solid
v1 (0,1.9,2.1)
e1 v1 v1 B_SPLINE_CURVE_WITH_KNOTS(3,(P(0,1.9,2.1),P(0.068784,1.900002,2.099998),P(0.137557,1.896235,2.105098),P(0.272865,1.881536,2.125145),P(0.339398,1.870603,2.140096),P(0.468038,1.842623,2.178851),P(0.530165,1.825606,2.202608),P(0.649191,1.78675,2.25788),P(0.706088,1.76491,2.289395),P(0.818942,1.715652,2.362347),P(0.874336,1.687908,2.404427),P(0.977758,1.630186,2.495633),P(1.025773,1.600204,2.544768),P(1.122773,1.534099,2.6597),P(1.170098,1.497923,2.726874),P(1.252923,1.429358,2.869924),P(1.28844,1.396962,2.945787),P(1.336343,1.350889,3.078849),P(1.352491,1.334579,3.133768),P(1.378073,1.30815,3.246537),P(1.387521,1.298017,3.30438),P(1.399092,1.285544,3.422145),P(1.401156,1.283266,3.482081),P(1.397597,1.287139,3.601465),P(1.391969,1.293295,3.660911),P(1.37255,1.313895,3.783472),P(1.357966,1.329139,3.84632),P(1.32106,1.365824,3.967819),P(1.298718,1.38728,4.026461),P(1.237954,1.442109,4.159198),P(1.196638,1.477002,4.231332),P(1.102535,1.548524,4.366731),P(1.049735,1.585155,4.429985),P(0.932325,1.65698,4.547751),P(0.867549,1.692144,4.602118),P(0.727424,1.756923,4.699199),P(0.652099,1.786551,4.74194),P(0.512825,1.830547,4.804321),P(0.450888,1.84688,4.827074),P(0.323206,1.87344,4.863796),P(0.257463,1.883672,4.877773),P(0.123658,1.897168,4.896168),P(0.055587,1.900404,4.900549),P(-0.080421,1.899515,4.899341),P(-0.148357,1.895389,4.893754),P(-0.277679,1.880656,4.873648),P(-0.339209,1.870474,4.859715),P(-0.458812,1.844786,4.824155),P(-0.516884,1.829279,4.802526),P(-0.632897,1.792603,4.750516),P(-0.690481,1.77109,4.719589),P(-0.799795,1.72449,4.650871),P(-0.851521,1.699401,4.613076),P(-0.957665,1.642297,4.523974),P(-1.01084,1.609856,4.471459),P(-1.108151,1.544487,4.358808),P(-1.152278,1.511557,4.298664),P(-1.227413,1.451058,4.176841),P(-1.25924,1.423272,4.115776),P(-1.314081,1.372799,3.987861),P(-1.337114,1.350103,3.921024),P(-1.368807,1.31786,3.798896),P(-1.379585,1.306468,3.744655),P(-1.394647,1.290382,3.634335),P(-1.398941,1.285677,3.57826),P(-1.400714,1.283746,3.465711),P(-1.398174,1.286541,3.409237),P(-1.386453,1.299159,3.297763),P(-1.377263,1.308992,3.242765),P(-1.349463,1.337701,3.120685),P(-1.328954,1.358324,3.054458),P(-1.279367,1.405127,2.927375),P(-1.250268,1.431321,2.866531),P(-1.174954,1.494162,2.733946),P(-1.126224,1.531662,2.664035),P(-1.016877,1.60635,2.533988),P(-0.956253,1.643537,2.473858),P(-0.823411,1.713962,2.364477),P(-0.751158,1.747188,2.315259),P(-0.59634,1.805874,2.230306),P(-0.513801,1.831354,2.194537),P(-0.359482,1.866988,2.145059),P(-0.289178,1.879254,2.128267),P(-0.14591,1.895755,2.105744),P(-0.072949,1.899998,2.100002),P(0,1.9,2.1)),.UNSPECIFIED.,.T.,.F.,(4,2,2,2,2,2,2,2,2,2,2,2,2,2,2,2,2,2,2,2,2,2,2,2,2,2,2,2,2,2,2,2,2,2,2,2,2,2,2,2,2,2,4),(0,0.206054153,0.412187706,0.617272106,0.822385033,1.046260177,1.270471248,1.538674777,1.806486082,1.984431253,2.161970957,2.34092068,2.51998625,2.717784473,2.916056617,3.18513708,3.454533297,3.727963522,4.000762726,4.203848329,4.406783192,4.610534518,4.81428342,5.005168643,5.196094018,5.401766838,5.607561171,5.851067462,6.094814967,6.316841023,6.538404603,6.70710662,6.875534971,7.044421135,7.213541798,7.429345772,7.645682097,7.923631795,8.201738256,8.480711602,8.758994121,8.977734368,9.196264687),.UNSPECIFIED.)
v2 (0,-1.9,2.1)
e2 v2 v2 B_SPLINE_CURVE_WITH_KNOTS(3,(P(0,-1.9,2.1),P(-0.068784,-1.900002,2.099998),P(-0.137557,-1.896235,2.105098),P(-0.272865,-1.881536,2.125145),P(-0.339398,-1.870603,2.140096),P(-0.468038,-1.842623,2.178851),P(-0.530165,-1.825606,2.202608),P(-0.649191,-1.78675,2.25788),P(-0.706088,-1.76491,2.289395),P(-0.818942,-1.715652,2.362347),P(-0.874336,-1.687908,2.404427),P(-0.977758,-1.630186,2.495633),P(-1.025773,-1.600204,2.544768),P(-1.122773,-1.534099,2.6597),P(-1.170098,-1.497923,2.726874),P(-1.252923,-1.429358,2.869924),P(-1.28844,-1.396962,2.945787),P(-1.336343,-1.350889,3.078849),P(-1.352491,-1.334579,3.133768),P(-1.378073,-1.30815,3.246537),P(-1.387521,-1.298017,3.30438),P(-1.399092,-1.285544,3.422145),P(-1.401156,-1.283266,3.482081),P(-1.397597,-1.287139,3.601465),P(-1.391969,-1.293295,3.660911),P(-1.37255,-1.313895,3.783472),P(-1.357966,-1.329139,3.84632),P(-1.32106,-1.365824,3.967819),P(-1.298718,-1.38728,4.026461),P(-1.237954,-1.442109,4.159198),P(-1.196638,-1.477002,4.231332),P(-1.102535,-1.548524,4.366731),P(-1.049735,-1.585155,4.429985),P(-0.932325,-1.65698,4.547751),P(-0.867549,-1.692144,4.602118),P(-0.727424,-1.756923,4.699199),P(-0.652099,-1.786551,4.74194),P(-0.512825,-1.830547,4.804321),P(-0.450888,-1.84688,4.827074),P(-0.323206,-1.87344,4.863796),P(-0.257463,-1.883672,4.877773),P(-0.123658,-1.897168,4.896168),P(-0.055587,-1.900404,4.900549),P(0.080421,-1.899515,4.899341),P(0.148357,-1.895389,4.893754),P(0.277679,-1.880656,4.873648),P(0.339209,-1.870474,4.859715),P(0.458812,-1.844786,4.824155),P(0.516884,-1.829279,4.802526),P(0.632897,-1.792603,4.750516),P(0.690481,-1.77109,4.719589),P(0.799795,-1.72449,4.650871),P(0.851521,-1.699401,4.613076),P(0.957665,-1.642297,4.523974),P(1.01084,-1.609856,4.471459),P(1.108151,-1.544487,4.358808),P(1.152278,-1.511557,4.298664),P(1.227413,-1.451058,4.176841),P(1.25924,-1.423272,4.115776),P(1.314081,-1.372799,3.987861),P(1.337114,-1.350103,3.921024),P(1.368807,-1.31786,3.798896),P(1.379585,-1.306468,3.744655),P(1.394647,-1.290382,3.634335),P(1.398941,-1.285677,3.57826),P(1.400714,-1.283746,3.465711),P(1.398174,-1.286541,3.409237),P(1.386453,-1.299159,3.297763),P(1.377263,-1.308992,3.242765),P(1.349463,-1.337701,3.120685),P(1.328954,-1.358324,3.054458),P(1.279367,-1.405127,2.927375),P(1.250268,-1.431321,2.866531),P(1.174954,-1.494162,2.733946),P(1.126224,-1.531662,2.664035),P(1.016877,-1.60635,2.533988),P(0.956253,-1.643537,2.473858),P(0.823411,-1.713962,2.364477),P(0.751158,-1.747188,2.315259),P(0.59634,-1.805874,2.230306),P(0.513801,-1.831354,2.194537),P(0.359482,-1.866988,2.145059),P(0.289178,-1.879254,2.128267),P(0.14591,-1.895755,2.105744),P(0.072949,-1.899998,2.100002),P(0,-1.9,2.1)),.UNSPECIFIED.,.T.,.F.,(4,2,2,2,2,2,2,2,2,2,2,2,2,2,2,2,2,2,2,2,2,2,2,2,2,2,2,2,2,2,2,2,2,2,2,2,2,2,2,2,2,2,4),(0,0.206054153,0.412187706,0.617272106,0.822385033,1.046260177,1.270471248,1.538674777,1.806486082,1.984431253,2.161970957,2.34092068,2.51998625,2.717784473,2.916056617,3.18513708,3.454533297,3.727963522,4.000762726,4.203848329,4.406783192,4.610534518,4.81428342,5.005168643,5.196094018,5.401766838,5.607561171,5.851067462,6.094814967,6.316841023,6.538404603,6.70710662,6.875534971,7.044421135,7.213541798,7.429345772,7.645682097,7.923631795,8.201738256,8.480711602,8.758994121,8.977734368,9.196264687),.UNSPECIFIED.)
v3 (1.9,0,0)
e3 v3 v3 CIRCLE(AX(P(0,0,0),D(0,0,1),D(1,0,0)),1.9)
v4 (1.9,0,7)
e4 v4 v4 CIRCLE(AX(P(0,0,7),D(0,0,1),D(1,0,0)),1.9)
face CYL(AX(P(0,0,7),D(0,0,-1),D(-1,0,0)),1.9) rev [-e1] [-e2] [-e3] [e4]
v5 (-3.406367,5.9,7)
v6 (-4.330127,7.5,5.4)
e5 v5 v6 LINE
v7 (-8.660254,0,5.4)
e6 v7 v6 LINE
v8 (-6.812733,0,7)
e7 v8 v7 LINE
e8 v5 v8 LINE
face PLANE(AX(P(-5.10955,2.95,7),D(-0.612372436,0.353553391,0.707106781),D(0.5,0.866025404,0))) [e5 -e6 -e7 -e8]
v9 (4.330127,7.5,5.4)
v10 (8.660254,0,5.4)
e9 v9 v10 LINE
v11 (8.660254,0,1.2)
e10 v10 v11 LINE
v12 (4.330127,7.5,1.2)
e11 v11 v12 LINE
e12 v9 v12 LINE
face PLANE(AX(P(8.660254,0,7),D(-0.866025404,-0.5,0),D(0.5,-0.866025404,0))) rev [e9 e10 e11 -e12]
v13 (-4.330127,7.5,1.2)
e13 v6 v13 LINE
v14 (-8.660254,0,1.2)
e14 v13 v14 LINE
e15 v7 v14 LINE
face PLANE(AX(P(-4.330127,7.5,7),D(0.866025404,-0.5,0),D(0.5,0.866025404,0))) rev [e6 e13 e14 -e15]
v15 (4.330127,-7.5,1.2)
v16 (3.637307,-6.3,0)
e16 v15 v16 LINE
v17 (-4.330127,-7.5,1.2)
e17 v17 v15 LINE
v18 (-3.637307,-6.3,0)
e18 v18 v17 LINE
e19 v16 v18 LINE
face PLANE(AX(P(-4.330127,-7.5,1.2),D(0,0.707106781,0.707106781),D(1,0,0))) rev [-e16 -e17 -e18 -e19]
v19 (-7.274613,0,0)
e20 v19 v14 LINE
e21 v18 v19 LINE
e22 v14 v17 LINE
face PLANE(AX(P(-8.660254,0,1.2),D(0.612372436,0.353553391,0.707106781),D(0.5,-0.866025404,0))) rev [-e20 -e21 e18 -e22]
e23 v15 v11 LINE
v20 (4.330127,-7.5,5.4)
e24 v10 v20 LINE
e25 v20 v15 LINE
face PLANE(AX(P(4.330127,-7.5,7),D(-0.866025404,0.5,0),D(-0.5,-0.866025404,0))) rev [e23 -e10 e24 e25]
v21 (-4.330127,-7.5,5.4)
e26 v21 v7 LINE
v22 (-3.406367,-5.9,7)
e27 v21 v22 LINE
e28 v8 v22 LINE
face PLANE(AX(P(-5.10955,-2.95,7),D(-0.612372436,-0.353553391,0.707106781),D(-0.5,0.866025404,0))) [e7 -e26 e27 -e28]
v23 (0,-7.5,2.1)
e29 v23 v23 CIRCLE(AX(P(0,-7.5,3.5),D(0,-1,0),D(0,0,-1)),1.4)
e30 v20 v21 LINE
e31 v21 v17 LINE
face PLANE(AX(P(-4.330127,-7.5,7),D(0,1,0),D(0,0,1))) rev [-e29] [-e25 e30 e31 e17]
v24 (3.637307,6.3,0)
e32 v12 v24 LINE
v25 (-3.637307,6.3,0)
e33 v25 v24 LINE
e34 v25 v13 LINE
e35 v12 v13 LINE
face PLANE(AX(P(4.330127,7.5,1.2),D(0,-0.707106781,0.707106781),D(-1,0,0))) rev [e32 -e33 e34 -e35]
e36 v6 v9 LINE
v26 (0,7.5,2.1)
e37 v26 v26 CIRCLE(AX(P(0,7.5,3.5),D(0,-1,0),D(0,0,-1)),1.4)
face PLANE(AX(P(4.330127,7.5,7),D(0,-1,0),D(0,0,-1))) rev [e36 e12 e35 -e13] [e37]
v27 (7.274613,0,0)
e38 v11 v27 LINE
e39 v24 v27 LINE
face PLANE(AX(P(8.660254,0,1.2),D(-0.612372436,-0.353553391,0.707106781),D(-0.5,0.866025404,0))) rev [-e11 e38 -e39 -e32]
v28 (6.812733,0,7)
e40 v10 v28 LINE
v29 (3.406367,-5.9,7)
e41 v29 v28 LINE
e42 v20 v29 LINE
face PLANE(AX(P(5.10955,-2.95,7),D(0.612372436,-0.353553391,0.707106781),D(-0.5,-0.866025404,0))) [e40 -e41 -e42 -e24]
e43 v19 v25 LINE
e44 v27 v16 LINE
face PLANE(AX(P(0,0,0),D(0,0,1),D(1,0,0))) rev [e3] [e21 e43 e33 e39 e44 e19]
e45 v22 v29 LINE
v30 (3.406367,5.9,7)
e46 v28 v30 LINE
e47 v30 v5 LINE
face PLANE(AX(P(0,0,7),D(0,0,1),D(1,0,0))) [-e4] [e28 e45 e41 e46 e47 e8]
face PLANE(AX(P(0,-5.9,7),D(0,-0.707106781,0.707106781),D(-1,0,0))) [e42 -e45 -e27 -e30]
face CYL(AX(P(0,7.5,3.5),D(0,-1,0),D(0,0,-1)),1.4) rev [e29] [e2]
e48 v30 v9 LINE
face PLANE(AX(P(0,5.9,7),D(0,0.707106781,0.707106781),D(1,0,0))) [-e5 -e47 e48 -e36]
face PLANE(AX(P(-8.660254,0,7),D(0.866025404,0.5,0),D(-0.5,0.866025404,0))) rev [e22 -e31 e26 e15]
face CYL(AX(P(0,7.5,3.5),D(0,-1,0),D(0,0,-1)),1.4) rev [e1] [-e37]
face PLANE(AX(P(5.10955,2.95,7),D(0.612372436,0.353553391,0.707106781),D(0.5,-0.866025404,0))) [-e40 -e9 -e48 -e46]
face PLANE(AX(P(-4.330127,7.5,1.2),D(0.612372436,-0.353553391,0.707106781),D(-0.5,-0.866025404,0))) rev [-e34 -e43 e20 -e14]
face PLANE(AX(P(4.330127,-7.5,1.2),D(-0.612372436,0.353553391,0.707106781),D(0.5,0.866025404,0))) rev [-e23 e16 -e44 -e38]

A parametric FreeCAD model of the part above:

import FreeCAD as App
import Part
import Sketcher

V = App.Vector
Q = App.Units.Quantity


def edges_at(feature, points):
    """Names of the edges that pass closest to the given points."""
    edges = feature.Shape.Edges
    near = lambda p: min(range(len(edges)), key=lambda i: edges[i].distToShape(Part.Vertex(*p))[0])
    return sorted({f"Edge{near(p) + 1}" for p in points})


def add_polygon(sketch, points):
    """Adds a closed chain of lines whose ends are joined by coincident constraints."""
    first, n = sketch.GeometryCount, len(points)
    for a, b in zip(points, points[1:] + points[:1]):
        sketch.addGeometry(Part.LineSegment(App.Vector(*a, 0), App.Vector(*b, 0)), False)
    for i in range(n):
        sketch.addConstraint(Sketcher.Constraint("Coincident", first + i, 2, first + (i + 1) % n, 1))

doc = App.newDocument("Part")
body = doc.addObject("PartDesign::Body", "Body")

# Sketch on XY plane
sketch1 = doc.addObject("Sketcher::SketchObject", "Sketch")
body.addObject(sketch1)
sketch1.AttachmentSupport = (doc.XY_Plane, [""])
sketch1.MapMode = "FlatFace"
add_polygon(sketch1, [(8.7, 0), (4.3, 7.5), (-4.3, 7.5), (-8.7, 0), (-4.3, -7.5), (4.3, -7.5)])  # lines 0-5
sketch1.addGeometry(Part.Circle(V(0, 0, 0), V(0, 0, 1), 1.9), False)  # 6
sketch1.addConstraint(Sketcher.Constraint("Horizontal", 1))
sketch1.addConstraint(Sketcher.Constraint("Horizontal", 4))
sketch1.addConstraint(Sketcher.Constraint("Coincident", 6, 3, -1, 1))
sketch1.addConstraint(Sketcher.Constraint("Symmetric", 0, 2, 3, 2, -1, 1))
sketch1.addConstraint(Sketcher.Constraint("Symmetric", 2, 2, 5, 2, -1, 1))
sketch1.addConstraint(Sketcher.Constraint("PointOnObject", 2, 2, -1))
sketch1.addConstraint(Sketcher.Constraint("Parallel", 2, 5))
sketch1.addConstraint(Sketcher.Constraint("Vertical", 1, 2, 3, 2))
sketch1.addConstraint(Sketcher.Constraint("Diameter", 6, 3.8))
sketch1.addConstraint(Sketcher.Constraint("Angle", 0, Q("120 deg")))
sketch1.addConstraint(Sketcher.Constraint("DistanceY", 3, 2, 1, 2, 15.0))
sketch1.addConstraint(Sketcher.Constraint("DistanceX", 1, 2, 1, 1, 8.660254))
pad1 = doc.addObject("PartDesign::Pad", "Pad")
body.addObject(pad1)
pad1.Profile = sketch1
pad1.Length = 7

# Sketch on XZ plane
sketch2 = doc.addObject("Sketcher::SketchObject", "Sketch001")
body.addObject(sketch2)
sketch2.AttachmentSupport = (doc.XZ_Plane, [""])
sketch2.MapMode = "FlatFace"
sketch2.AttachmentOffset = App.Placement(V(0, 0, 7.5), App.Rotation())
sketch2.addGeometry(Part.Circle(V(0, 3.5, 0), V(0, 0, 1), 1.4), False)
sketch2.addConstraint(Sketcher.Constraint("PointOnObject", 0, 3, -2))
sketch2.addConstraint(Sketcher.Constraint("Diameter", 0, 2.8))
sketch2.addConstraint(Sketcher.Constraint("DistanceY", -1, 1, 0, 3, 3.5))
pocket1 = doc.addObject("PartDesign::Pocket", "Pocket")
body.addObject(pocket1)
pocket1.Profile = sketch2
pocket1.Type = "ThroughAll"
doc.recompute()

chamfer = doc.addObject("PartDesign::Chamfer", "Chamfer")
body.addObject(chamfer)
chamfer.Base = (pocket1, edges_at(pocket1, [
    (0, 7.5, 7),
    (-6.495, 3.75, 7),
    (-6.495, -3.75, 7),
    (0, -7.5, 7),
    (6.495, -3.75, 7),
    (6.495, 3.75, 7),
]))
chamfer.Size = 1.6
doc.recompute()

chamfer2 = doc.addObject("PartDesign::Chamfer", "Chamfer001")
body.addObject(chamfer2)
chamfer2.Base = (chamfer, edges_at(chamfer, [
    (0, -7.5, 0),
    (-6.495, -3.75, 0),
    (-6.495, 3.75, 0),
    (0, 7.5, 0),
    (6.495, 3.75, 0),
    (6.495, -3.75, 0),
]))
chamfer2.Size = 1.2

doc.recompute()
